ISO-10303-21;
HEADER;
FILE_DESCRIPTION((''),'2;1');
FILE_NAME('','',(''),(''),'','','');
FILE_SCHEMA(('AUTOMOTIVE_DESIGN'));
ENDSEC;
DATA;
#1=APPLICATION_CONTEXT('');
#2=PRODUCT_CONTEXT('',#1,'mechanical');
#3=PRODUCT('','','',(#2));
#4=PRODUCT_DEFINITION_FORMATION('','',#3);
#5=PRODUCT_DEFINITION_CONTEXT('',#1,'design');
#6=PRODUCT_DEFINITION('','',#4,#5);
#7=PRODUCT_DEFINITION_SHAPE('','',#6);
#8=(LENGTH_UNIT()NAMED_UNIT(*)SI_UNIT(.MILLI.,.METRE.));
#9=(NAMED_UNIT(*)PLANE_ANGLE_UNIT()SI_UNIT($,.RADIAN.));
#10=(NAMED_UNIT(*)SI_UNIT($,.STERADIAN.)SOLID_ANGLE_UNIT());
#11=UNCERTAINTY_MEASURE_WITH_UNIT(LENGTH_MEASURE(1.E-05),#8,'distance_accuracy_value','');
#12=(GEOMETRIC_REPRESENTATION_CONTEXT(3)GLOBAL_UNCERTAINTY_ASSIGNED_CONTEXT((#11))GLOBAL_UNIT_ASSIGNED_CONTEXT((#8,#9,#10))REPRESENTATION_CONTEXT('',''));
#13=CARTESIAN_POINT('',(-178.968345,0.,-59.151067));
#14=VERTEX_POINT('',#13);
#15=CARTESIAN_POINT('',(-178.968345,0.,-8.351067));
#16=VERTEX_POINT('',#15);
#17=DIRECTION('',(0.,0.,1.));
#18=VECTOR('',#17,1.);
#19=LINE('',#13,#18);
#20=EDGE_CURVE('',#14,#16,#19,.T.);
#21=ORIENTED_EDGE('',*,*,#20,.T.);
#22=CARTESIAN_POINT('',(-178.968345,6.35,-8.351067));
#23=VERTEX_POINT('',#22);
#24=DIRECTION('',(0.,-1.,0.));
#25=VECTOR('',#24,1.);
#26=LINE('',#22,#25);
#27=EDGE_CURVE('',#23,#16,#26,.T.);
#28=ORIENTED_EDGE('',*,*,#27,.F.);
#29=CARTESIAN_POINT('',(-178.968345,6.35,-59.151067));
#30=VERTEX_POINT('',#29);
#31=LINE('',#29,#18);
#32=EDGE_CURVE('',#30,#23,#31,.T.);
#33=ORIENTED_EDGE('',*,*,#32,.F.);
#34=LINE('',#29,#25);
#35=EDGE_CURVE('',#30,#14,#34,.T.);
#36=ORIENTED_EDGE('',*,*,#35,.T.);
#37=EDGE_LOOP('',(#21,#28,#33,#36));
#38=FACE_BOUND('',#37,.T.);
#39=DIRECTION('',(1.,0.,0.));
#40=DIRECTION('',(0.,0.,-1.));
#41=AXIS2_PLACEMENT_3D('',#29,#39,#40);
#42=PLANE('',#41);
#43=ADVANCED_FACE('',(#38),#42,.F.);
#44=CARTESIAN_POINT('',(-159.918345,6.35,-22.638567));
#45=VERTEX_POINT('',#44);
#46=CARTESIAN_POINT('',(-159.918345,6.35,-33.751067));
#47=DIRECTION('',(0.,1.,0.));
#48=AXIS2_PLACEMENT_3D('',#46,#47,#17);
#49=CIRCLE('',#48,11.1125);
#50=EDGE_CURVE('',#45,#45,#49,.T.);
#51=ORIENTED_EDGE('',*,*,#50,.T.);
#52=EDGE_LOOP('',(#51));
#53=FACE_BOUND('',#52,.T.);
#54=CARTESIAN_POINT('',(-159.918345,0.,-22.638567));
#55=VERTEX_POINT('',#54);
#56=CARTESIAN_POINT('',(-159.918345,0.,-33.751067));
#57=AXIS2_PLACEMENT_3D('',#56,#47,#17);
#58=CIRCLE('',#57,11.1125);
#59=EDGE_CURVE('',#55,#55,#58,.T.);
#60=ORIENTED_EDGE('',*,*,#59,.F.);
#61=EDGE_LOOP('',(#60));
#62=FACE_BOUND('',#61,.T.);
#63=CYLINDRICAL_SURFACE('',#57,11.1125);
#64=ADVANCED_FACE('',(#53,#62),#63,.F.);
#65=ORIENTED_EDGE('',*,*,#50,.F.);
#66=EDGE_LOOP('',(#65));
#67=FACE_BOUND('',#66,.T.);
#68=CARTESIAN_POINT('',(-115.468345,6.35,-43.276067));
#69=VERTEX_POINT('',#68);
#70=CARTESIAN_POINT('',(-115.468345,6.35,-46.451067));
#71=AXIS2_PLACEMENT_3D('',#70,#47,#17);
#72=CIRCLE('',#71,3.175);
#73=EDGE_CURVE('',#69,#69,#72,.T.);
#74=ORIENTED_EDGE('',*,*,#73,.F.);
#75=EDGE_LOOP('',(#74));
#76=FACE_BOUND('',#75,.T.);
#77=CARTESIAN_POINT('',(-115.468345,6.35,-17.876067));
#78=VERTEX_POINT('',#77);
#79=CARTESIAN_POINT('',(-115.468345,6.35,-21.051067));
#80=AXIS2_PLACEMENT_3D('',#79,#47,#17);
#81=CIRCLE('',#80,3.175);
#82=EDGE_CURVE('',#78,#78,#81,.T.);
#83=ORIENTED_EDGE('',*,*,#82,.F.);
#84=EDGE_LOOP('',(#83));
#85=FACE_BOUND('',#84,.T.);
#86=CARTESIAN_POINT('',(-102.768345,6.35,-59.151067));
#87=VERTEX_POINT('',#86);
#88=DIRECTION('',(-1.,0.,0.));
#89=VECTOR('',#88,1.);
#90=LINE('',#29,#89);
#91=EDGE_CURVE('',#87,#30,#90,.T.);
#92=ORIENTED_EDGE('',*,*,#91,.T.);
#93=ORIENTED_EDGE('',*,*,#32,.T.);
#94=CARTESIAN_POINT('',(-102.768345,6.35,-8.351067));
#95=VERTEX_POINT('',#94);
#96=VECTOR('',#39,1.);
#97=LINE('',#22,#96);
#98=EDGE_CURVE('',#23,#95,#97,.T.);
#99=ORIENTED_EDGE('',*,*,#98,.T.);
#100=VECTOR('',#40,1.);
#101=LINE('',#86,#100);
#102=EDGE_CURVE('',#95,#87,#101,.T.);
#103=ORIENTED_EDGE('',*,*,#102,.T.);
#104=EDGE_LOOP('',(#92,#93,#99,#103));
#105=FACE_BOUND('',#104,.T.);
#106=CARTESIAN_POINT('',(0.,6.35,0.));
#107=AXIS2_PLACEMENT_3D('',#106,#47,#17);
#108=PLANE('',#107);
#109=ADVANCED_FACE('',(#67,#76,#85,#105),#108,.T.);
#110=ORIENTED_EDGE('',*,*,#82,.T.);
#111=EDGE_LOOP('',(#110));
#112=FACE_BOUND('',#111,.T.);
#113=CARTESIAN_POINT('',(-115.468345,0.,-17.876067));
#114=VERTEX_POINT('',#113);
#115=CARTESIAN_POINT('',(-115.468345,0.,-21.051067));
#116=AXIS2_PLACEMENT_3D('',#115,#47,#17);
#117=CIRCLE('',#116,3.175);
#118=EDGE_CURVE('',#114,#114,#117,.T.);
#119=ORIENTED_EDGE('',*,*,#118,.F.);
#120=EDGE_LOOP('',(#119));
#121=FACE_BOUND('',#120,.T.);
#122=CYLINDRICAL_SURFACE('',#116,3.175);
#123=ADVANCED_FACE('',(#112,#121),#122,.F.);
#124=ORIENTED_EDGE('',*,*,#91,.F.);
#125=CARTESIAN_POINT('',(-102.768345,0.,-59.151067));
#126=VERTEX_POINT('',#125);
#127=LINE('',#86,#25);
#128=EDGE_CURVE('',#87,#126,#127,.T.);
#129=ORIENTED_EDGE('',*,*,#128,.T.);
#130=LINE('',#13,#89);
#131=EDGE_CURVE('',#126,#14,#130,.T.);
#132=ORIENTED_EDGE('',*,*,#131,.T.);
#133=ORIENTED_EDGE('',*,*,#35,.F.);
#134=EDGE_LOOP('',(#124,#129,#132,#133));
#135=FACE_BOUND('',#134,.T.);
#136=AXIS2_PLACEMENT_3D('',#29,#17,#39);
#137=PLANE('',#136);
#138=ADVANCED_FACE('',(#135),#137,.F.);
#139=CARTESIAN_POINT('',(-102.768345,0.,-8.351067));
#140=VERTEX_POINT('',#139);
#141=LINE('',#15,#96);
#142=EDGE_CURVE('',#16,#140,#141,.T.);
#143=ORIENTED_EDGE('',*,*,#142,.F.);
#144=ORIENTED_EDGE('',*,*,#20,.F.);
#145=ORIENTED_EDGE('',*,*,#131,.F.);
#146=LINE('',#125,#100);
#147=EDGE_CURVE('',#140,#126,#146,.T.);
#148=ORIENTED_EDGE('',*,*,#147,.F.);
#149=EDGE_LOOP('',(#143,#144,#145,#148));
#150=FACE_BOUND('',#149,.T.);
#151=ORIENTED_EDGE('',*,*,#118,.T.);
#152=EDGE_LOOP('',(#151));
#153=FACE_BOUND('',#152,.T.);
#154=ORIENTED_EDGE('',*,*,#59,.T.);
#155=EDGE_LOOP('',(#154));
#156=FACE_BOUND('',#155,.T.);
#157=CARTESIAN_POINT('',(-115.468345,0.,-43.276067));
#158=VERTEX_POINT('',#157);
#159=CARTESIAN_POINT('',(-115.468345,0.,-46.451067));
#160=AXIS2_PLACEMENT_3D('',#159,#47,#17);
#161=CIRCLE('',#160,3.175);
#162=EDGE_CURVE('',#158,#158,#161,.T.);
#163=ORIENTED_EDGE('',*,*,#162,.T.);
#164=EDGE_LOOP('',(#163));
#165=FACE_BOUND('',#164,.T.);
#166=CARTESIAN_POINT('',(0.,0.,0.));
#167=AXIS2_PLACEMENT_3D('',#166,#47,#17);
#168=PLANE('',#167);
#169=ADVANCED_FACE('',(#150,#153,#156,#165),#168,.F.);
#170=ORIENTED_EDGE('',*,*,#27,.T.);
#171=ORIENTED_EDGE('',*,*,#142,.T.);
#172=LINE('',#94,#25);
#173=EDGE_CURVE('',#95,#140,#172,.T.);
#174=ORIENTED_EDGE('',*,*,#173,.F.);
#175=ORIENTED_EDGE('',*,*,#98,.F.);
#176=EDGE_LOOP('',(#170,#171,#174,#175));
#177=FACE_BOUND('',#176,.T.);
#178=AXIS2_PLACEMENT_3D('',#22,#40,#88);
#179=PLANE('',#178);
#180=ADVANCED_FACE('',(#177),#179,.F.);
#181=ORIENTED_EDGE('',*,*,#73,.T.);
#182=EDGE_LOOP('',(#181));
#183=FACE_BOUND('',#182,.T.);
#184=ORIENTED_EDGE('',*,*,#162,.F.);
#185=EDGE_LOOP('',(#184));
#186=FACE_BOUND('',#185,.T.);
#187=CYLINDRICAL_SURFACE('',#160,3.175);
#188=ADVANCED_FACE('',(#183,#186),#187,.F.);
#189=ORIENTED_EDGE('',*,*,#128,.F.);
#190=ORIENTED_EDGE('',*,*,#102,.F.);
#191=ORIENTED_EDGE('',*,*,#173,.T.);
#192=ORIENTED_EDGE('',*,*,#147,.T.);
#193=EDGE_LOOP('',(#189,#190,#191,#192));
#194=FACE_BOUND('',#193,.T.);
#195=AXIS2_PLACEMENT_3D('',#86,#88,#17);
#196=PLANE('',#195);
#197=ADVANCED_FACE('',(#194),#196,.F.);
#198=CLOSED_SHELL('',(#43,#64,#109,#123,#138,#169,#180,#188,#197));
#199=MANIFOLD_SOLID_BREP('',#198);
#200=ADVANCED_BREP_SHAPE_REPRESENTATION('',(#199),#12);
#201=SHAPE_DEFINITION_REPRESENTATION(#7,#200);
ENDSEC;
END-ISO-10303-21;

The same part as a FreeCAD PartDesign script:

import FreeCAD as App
import Part
import Sketcher
from FreeCAD import Vector
Q = App.Units.Quantity


def add_polygon(sketch, points):
    """Adds a closed chain of lines whose ends are joined by coincident constraints."""
    first, n = sketch.GeometryCount, len(points)
    for a, b in zip(points, points[1:] + points[:1]):
        sketch.addGeometry(Part.LineSegment(App.Vector(*a, 0), App.Vector(*b, 0)), False)
    for i in range(n):
        sketch.addConstraint(Sketcher.Constraint("Coincident", first + i, 2, first + (i + 1) % n, 1))

doc = App.newDocument("Part")
params = doc.addObject("Spreadsheet::Sheet", "Params")
for row, (alias, value) in enumerate([
    ("sketch1_width", "3 in"),
    ("sketch1_height", "2 in"),
    ("pad1_length", "0.25 in"),
    ("sketch2_diameter", "0.25 in"),
    ("sketch2_diameter2", "0.875 in"),
], start=1):
    params.set(f"A{row}", alias)
    params.set(f"B{row}", "=" + value)
    params.setAlias(f"B{row}", alias)

body = doc.addObject("PartDesign::Body", "Body")

sketch1 = body.newObject("Sketcher::SketchObject", "Sketch")
sketch1.AttachmentSupport = (doc.getObject("XZ_Plane"), [""])
sketch1.MapMode = "FlatFace"
add_polygon(sketch1, [(-179, -59), (-179, -8), (-103, -8), (-103, -59)])
sketch1.addConstraint([
    Sketcher.Constraint("Vertical", 0),
    Sketcher.Constraint("Horizontal", 1),
    Sketcher.Constraint("Vertical", 2),
    Sketcher.Constraint("Horizontal", 3),
    Sketcher.Constraint("DistanceX", 1, 1, 1, 2, Q("3 in")),
    Sketcher.Constraint("DistanceY", 0, 1, 0, 2, Q("2 in")),
    Sketcher.Constraint("DistanceX", 0, 2, -1, 1, 178.968345),
    Sketcher.Constraint("DistanceY", 0, 2, -1, 1, 8.351067),
])
sketch1.setExpression("Constraints[8]", "Params.sketch1_width")
sketch1.setExpression("Constraints[9]", "Params.sketch1_height")
pad1 = body.newObject("PartDesign::Pad", "Pad")
pad1.Profile = sketch1
pad1.setExpression("Length", "Params.pad1_length")
pad1.Reversed = True

sketch2 = body.newObject("Sketcher::SketchObject", "Sketch001")
sketch2.AttachmentSupport = (doc.getObject("XZ_Plane"), [""])
sketch2.MapMode = "FlatFace"
sketch2.AttachmentOffset = App.Placement(Vector(0, 0, -0.25 * 25.4), App.Rotation())
sketch2.addGeometry([
    Part.Circle(Vector(-159.9, -33.8, 0), Vector(0, 0, 1), 11.1),
    Part.Circle(Vector(-115.5, -46.5, 0), Vector(0, 0, 1), 3.2),
    Part.Circle(Vector(-115.5, -21.1, 0), Vector(0, 0, 1), 3.2),
], False)
sketch2.addConstraint([
    Sketcher.Constraint("Equal", 1, 2),
    Sketcher.Constraint("Vertical", 1, 3, 2, 3),
    Sketcher.Constraint("Diameter", 1, Q("0.25 in")),
    Sketcher.Constraint("Diameter", 0, Q("0.875 in")),
    Sketcher.Constraint("DistanceY", 1, 3, 2, 3, Q("1 in")),
    Sketcher.Constraint("DistanceY", 1, 3, 0, 3, Q("0.5 in")),
    Sketcher.Constraint("DistanceX", 0, 3, 1, 3, Q("1.75 in")),
    Sketcher.Constraint("DistanceX", 0, 3, -1, 1, 159.918345),
    Sketcher.Constraint("DistanceY", 0, 3, -1, 1, 33.751067),
])
sketch2.setExpression("Constraints[2]", "Params.sketch2_diameter")
sketch2.setExpression("Constraints[3]", "Params.sketch2_diameter2")
pocket1 = body.newObject("PartDesign::Pocket", "Pocket")
pocket1.Profile = sketch2
pocket1.Type = "ThroughAll"
pocket1.Reversed = True

doc.recompute()
